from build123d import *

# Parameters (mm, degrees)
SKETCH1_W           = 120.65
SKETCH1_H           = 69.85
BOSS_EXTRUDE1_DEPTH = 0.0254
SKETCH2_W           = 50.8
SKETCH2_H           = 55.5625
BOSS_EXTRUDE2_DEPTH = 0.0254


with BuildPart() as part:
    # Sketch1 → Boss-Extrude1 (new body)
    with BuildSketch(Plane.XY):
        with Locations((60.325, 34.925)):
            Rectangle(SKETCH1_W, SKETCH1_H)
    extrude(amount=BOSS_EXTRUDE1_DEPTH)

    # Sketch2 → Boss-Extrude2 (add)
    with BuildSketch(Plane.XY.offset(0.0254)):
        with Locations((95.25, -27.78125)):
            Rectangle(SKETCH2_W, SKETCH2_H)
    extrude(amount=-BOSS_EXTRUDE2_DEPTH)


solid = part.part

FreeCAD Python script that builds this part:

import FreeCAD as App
import Part
import Sketcher
Q = App.Units.Quantity


def add_polygon(sketch, points):
    """Adds a closed chain of lines whose ends are joined by coincident constraints."""
    first, n = sketch.GeometryCount, len(points)
    for a, b in zip(points, points[1:] + points[:1]):
        sketch.addGeometry(Part.LineSegment(App.Vector(*a, 0), App.Vector(*b, 0)), False)
    for i in range(n):
        sketch.addConstraint(Sketcher.Constraint("Coincident", first + i, 2, first + (i + 1) % n, 1))

doc = App.newDocument("Part")
params = doc.addObject("Spreadsheet::Sheet", "Params")
for row, (alias, value) in enumerate([
    ("sketch1_width", "4.75 in"),
    ("sketch1_height", "2.75 in"),
    ("pad1_length", "0.001 in"),
    ("sketch2_width", "2 in"),
    ("sketch2_height", "2.1875 in"),
    ("pad2_length", "0.001 in"),
], start=1):
    params.set(f"A{row}", alias)
    params.set(f"B{row}", "=" + value)
    params.setAlias(f"B{row}", alias)

body = doc.addObject("PartDesign::Body", "Body")

# Sketch on XY plane
sketch1 = doc.addObject("Sketcher::SketchObject", "Sketch")
body.addObject(sketch1)
sketch1.AttachmentSupport = (doc.XY_Plane, [""])
sketch1.MapMode = "FlatFace"
add_polygon(sketch1, [(0, 69.85), (0, 0), (120.65, 0), (120.65, 69.85)])  # lines 0-3
sketch1.addConstraint([
    Sketcher.Constraint("Vertical", 0),
    Sketcher.Constraint("Horizontal", 1),
    Sketcher.Constraint("Vertical", 2),
    Sketcher.Constraint("Horizontal", 3),
    Sketcher.Constraint("Coincident", 0, 2, -1, 1),
    Sketcher.Constraint("DistanceX", 1, 1, 1, 2, Q("4.75 in")),
    Sketcher.Constraint("DistanceY", 0, 2, 0, 1, Q("2.75 in")),
])
sketch1.setExpression("Constraints[9]", "Params.sketch1_width")
sketch1.setExpression("Constraints[10]", "Params.sketch1_height")
pad1 = doc.addObject("PartDesign::Pad", "Pad")
body.addObject(pad1)
pad1.Profile = sketch1
pad1.setExpression("Length", "Params.pad1_length")

# Sketch on XY plane
sketch2 = doc.addObject("Sketcher::SketchObject", "Sketch001")
body.addObject(sketch2)
sketch2.AttachmentSupport = (doc.XY_Plane, [""])
sketch2.MapMode = "FlatFace"
sketch2.AttachmentOffset = App.Placement(App.Vector(0, 0, 0.001 * 25.4), App.Rotation())
add_polygon(sketch2, [(69.85, 0), (69.85, -55.5625), (120.65, -55.5625), (120.65, 0)])  # lines 0-3
sketch2.addConstraint([
    Sketcher.Constraint("Vertical", 0),
    Sketcher.Constraint("Horizontal", 1),
    Sketcher.Constraint("Vertical", 2),
    Sketcher.Constraint("Horizontal", 3),
    Sketcher.Constraint("PointOnObject", 2, 2, -1),
    Sketcher.Constraint("DistanceX", 1, 1, 1, 2, Q("2 in")),
    Sketcher.Constraint("DistanceY", 0, 2, 0, 1, Q("2.1875 in")),
    Sketcher.Constraint("DistanceX", -1, 1, 0, 2, Q("2.75 in")),
])
sketch2.setExpression("Constraints[9]", "Params.sketch2_width")
sketch2.setExpression("Constraints[10]", "Params.sketch2_height")
pad2 = doc.addObject("PartDesign::Pad", "Pad001")
body.addObject(pad2)
pad2.Profile = sketch2
pad2.setExpression("Length", "Params.pad2_length")
pad2.Reversed = True

doc.recompute()
